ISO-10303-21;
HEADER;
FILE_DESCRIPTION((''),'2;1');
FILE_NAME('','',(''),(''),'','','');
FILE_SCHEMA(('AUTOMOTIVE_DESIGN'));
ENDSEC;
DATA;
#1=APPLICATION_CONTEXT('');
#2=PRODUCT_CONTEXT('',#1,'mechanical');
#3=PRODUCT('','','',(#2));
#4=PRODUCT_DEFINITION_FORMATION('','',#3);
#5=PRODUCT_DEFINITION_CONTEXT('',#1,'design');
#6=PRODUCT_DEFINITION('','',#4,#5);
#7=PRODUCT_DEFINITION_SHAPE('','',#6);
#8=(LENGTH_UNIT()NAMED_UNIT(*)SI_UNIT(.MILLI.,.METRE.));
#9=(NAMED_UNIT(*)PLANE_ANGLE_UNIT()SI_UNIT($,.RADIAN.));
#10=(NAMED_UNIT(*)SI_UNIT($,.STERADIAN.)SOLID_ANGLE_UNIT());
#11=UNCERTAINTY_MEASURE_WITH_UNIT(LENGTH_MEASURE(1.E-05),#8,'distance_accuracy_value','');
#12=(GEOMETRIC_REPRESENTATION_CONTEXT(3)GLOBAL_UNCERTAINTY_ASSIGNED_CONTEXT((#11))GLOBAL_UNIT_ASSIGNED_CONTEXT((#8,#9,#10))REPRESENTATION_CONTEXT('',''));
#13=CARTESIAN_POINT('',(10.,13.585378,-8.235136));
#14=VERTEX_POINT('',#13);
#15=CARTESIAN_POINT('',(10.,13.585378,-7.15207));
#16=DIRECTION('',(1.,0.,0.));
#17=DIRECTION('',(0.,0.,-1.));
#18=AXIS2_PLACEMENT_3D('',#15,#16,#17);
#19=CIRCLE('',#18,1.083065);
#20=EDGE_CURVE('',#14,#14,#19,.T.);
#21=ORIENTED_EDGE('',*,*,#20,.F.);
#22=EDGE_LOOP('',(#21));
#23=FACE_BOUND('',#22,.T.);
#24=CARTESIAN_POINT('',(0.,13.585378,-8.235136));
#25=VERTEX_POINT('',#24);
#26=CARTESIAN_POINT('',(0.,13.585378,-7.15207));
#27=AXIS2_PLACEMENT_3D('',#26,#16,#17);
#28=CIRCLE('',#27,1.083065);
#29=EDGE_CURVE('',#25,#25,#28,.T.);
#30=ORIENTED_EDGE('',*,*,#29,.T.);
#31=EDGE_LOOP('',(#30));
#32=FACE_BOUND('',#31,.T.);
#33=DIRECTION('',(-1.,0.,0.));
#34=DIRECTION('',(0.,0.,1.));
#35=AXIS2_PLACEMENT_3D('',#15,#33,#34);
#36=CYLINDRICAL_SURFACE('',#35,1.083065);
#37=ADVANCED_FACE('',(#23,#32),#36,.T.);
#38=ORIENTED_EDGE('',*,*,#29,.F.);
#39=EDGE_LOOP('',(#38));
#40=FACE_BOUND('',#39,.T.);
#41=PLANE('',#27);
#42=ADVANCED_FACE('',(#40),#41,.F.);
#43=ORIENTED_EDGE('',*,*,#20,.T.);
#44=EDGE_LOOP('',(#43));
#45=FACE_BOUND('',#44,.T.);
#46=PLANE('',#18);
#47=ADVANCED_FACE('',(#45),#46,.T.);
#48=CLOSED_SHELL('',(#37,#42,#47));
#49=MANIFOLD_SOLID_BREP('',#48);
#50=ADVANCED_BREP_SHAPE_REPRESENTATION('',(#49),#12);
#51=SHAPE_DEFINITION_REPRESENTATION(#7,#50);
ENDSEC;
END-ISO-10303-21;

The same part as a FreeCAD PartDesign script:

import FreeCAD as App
import Part
import Sketcher

doc = App.newDocument("Part")
body = doc.addObject("PartDesign::Body", "Body")

# Sketch on YZ plane
sketch1 = body.newObject("Sketcher::SketchObject", "Sketch")
sketch1.AttachmentSupport = (doc.getObject("YZ_Plane"), [""])
sketch1.MapMode = "FlatFace"
sketch1.addGeometry(Part.Circle(App.Vector(13.6, -7.2, 0), App.Vector(0, 0, 1), 1.1), False)
sketch1.addConstraint([
    Sketcher.Constraint("Diameter", 0, 2.166131),
    Sketcher.Constraint("DistanceY", 0, 3, -1, 1, 7.15207),
    Sketcher.Constraint("DistanceX", -1, 1, 0, 3, 13.585378),
])
pad1 = body.newObject("PartDesign::Pad", "Pad")
pad1.Profile = sketch1
pad1.Length = 10

doc.recompute()
